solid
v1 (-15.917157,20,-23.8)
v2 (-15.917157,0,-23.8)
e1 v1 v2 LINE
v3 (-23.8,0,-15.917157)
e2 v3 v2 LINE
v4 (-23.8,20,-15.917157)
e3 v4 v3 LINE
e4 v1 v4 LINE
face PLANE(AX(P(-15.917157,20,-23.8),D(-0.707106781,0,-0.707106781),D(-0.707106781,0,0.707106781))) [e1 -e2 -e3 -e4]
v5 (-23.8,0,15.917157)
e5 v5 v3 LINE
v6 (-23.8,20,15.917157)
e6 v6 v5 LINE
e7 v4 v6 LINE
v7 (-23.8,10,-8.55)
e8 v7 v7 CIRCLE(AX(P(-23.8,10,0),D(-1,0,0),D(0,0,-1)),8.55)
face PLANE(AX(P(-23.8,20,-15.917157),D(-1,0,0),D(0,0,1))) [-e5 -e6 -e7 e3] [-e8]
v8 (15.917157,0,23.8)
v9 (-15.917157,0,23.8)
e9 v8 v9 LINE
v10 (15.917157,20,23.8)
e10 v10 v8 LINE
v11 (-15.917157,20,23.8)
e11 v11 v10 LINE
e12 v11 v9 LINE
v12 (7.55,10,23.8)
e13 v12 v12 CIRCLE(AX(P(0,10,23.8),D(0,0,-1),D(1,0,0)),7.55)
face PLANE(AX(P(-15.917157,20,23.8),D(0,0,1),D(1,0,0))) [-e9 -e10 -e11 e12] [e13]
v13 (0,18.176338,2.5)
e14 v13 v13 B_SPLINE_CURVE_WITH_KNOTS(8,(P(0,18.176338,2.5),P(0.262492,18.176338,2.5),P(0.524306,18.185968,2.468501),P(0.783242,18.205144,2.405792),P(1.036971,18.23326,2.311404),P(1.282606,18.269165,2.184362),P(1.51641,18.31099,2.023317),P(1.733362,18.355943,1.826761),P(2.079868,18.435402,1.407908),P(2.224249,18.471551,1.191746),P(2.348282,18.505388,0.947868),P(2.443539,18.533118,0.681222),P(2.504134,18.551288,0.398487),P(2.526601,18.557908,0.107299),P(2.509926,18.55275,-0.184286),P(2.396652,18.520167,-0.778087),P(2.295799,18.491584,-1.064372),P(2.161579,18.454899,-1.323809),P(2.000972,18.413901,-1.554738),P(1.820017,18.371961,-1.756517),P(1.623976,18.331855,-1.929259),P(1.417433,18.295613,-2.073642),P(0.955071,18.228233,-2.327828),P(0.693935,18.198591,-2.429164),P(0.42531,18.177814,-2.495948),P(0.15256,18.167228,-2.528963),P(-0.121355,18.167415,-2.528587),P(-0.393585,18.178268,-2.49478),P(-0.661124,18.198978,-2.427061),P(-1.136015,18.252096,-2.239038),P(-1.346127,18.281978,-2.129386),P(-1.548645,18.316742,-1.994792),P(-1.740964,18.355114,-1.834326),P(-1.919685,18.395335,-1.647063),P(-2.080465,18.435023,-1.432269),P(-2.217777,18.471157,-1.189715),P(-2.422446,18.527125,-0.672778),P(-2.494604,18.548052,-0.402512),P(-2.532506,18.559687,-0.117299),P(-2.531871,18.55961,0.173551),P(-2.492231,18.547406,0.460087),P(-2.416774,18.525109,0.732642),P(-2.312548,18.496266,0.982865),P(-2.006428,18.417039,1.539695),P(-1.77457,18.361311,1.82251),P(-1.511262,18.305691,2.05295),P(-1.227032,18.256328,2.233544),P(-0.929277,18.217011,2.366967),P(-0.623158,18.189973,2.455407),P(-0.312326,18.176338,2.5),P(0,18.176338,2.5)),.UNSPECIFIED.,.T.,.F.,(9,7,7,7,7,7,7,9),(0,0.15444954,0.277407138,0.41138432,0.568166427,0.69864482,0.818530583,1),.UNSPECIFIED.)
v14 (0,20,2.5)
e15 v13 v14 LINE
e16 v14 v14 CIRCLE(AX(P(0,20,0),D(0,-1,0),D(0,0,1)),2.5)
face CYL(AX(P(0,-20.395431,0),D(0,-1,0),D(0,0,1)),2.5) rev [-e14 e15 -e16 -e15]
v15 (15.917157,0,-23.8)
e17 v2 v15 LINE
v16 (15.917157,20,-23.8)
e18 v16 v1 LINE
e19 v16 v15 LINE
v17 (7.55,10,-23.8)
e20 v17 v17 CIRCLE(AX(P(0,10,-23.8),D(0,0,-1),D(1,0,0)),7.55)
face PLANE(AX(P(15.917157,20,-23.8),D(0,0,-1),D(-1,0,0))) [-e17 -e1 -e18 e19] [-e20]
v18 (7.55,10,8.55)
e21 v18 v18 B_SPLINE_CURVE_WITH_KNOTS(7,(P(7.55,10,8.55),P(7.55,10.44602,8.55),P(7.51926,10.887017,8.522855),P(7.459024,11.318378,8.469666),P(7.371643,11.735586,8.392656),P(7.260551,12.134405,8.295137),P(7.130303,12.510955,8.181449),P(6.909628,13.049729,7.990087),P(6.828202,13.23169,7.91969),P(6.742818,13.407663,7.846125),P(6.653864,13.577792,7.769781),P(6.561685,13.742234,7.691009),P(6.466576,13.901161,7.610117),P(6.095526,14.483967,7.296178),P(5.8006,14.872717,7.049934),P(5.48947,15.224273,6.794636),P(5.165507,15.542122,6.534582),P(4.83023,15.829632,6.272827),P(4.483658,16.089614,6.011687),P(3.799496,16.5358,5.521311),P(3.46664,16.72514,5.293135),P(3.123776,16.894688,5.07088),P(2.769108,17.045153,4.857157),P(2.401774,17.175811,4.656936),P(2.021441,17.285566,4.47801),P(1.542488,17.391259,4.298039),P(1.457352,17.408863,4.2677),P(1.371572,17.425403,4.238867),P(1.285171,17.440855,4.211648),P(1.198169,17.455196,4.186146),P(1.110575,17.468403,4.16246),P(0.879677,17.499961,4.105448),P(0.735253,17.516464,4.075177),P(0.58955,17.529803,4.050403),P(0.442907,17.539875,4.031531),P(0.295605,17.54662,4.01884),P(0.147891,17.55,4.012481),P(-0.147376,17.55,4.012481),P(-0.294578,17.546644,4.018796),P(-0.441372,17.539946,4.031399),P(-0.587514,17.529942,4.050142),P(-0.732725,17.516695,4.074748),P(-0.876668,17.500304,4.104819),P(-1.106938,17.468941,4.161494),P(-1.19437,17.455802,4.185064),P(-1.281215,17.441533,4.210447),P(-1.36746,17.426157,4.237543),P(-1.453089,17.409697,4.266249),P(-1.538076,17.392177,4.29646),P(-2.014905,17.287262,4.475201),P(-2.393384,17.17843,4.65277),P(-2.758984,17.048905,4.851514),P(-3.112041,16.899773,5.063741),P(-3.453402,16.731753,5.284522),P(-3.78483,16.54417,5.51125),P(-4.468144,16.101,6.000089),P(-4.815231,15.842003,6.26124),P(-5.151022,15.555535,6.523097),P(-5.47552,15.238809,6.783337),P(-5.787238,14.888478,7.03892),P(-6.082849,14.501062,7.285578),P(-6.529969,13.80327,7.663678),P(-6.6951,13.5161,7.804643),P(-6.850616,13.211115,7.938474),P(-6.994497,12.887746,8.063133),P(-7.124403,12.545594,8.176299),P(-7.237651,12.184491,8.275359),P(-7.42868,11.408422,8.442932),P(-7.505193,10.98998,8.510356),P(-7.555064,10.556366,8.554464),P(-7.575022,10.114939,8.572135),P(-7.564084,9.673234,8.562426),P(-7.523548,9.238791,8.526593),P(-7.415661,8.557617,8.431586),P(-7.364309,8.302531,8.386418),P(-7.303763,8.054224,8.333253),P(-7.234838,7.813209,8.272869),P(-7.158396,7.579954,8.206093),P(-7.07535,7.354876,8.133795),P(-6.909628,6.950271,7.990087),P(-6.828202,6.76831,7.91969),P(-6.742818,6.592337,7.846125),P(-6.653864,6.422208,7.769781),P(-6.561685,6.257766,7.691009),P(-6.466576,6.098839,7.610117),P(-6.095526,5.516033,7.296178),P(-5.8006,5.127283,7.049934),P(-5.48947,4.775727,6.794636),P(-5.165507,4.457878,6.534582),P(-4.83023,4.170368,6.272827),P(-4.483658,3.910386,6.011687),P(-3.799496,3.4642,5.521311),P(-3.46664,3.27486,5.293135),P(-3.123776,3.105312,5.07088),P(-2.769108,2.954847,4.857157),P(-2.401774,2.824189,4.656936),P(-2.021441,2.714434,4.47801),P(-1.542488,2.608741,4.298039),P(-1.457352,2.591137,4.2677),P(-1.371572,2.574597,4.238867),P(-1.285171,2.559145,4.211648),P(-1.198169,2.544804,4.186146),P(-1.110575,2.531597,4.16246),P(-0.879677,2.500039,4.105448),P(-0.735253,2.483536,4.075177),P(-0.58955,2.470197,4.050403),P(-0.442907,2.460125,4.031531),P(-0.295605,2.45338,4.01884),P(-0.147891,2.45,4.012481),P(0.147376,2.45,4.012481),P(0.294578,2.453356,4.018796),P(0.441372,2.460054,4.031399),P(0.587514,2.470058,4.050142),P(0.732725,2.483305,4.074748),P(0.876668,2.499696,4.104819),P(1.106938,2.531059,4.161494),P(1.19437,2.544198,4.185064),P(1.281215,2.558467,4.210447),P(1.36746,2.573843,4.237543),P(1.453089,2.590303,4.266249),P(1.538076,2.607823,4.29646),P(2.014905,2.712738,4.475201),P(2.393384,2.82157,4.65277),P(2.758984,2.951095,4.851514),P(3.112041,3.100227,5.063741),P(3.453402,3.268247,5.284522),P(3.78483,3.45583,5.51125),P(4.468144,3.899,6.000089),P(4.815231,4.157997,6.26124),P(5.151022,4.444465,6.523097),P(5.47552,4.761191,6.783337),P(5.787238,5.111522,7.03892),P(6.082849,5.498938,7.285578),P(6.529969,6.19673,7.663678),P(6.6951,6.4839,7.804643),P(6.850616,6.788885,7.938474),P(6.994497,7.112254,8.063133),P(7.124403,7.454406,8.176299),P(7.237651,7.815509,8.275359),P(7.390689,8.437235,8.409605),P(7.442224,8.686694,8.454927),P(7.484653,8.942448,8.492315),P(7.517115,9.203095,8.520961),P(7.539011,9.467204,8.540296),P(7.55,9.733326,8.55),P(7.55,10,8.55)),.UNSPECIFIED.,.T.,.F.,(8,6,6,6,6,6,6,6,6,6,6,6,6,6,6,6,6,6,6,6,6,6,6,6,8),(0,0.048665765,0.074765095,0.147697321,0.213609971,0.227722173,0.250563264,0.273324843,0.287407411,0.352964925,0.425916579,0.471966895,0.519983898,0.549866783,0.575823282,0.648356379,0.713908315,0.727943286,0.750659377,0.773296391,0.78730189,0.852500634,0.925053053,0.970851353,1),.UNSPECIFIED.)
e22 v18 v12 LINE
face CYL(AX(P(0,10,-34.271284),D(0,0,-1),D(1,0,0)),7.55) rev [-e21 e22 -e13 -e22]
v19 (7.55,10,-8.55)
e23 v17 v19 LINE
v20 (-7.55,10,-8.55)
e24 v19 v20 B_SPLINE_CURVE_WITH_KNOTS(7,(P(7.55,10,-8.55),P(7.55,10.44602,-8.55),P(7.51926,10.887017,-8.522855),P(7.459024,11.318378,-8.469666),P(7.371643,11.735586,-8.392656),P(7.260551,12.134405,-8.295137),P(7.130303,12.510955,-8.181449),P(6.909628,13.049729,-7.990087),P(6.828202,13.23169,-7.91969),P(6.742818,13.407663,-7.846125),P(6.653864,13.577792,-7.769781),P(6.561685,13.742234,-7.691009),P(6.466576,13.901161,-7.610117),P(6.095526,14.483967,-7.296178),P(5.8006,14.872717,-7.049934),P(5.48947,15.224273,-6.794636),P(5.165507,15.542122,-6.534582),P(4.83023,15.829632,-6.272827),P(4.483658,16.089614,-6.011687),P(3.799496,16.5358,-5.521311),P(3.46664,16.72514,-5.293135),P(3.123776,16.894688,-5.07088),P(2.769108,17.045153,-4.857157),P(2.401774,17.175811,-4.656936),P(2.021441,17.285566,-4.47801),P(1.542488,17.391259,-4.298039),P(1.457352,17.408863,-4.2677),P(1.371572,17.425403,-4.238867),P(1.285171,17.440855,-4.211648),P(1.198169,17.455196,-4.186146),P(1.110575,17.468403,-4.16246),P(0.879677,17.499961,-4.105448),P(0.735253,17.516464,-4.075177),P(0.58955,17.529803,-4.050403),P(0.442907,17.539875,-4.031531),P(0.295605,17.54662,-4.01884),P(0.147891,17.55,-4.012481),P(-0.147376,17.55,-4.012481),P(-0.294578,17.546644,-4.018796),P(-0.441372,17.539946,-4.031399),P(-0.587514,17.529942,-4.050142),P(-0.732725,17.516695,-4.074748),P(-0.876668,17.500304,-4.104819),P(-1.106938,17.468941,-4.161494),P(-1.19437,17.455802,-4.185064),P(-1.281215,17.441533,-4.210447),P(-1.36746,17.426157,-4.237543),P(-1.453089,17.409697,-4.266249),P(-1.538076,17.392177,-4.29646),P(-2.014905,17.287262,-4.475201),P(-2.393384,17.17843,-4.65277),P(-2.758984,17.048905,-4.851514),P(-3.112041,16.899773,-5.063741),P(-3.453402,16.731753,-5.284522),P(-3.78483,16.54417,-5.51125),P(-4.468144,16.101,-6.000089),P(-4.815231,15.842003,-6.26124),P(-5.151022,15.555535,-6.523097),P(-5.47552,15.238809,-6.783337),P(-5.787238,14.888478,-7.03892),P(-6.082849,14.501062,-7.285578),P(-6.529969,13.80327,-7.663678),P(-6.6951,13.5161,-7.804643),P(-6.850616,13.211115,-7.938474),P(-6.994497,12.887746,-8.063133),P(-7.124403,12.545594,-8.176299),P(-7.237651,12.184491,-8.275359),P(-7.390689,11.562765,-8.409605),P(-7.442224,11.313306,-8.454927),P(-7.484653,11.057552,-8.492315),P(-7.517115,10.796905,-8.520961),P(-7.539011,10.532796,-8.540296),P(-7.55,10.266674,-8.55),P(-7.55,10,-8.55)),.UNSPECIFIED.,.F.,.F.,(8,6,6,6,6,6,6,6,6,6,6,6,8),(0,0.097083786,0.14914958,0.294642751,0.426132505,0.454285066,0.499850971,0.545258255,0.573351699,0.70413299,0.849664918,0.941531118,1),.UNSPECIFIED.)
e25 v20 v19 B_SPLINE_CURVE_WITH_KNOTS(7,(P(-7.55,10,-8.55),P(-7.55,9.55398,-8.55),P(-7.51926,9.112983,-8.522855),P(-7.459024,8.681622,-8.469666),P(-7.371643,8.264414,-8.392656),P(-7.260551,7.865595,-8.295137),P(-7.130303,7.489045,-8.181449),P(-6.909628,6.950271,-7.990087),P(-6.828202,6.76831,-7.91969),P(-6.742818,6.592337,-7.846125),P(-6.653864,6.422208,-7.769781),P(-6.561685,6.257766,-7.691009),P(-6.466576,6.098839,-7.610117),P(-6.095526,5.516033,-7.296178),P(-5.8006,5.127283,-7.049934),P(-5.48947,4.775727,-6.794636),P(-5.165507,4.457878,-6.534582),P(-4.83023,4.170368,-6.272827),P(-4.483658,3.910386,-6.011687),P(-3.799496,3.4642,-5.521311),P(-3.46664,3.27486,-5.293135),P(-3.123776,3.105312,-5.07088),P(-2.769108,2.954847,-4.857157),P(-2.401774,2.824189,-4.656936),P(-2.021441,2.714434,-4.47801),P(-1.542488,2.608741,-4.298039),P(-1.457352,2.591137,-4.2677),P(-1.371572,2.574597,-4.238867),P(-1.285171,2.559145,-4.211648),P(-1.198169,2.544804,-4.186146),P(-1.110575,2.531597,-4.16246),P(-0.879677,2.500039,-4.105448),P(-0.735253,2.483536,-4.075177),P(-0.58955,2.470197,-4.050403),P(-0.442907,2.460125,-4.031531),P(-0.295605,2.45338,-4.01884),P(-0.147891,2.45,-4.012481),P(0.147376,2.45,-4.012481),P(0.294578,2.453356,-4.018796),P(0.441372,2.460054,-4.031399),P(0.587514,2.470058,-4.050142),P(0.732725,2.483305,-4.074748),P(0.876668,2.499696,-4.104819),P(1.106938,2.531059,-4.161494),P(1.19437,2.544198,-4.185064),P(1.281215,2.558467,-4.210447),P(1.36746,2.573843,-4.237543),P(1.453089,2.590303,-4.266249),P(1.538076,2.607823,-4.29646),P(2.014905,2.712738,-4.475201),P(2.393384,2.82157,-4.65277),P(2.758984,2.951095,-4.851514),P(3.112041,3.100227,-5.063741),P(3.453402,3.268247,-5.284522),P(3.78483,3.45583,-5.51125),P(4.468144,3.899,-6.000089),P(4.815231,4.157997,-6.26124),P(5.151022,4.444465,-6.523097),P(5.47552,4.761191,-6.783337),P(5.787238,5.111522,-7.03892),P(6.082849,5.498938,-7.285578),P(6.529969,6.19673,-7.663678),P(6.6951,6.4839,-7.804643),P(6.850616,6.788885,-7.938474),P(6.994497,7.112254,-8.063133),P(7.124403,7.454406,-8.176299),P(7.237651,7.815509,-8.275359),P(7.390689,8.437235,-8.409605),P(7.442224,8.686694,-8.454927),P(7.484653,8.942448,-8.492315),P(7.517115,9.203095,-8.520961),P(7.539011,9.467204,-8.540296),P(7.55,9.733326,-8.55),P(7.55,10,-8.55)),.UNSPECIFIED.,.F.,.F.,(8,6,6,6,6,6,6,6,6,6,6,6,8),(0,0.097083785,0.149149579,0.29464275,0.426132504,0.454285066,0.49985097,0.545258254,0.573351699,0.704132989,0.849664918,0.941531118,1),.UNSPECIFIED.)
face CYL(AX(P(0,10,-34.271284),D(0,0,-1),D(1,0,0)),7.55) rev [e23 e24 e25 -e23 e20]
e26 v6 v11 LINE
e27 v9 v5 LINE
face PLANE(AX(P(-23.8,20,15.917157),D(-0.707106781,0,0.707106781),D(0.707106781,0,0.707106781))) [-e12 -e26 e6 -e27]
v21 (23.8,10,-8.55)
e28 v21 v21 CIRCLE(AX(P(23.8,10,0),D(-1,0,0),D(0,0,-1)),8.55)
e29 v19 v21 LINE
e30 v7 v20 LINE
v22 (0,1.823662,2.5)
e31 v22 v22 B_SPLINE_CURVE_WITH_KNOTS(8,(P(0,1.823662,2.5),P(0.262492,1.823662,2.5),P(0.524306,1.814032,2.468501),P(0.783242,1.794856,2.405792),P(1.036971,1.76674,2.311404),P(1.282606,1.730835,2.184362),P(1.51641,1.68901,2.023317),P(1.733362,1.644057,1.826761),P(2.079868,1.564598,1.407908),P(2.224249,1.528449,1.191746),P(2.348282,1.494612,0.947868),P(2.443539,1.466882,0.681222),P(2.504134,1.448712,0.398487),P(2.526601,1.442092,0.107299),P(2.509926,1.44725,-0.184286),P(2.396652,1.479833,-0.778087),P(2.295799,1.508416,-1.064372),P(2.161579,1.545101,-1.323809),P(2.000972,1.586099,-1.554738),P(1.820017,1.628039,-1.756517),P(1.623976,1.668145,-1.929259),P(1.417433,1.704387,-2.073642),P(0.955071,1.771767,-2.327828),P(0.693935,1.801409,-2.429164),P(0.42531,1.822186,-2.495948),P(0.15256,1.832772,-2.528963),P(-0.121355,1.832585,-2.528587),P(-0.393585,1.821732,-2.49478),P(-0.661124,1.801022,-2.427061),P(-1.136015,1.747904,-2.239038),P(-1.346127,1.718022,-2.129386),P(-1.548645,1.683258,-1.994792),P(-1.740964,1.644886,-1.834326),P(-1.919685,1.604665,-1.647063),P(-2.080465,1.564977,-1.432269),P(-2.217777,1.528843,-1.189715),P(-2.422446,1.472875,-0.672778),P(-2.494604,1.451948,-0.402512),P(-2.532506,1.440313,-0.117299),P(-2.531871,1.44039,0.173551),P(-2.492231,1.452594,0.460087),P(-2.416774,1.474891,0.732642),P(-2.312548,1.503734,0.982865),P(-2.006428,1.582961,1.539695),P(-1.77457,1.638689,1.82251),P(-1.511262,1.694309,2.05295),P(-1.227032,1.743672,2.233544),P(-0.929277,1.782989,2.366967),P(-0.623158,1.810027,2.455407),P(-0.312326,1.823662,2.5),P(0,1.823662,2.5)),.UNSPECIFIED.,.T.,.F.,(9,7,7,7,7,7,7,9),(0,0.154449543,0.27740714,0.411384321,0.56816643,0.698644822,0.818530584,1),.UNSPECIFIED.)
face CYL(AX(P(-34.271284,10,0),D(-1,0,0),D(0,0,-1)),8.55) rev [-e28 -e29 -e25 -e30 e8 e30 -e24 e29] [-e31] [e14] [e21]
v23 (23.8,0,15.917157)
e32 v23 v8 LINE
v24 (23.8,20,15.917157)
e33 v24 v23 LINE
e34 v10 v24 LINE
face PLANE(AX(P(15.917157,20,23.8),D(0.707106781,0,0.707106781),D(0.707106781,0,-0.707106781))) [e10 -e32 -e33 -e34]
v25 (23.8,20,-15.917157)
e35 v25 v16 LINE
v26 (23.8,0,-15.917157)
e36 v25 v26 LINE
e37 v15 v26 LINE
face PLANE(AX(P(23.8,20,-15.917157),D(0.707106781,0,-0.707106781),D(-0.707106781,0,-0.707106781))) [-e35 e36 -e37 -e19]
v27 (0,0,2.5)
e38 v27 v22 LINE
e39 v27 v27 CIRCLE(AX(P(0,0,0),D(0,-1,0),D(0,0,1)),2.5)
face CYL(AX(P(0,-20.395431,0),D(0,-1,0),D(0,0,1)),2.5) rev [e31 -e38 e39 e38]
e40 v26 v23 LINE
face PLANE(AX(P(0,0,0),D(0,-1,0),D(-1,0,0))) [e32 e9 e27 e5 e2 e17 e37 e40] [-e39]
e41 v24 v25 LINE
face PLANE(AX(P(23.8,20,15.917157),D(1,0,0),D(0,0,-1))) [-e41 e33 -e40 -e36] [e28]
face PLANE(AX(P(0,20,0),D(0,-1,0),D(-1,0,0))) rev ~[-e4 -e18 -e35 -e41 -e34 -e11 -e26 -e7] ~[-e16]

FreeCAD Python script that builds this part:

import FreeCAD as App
import Part
import Sketcher

V = App.Vector


def add_polygon(sketch, points):
    """Adds a closed chain of lines whose ends are joined by coincident constraints."""
    first, n = sketch.GeometryCount, len(points)
    for a, b in zip(points, points[1:] + points[:1]):
        sketch.addGeometry(Part.LineSegment(App.Vector(*a, 0), App.Vector(*b, 0)), False)
    for i in range(n):
        sketch.addConstraint(Sketcher.Constraint("Coincident", first + i, 2, first + (i + 1) % n, 1))

doc = App.newDocument("Part")
params = doc.addObject("Spreadsheet::Sheet", "Params")
for row, (alias, value) in enumerate([
    ("sketch1_width", "32 mm"),
    ("pad1_length", "20 mm"),
    ("sketch2_diameter", "15.1 mm"),
    ("sketch3_diameter", "17.1 mm"),
    ("sketch4_diameter", "5 mm"),
    ("sketch5_width", "32 mm"),
], start=1):
    params.set(f"A{row}", alias)
    params.set(f"B{row}", "=" + value)
    params.setAlias(f"B{row}", alias)

body = doc.addObject("PartDesign::Body", "Body")

# Sketch on XZ plane
sketch1 = body.newObject("Sketcher::SketchObject", "Sketch")
sketch1.AttachmentSupport = (doc.getObject("XZ_Plane"), [""])
sketch1.MapMode = "FlatFace"
add_polygon(sketch1, [(-16, -24), (-24, -16), (-24, 16), (-16, 24), (16, 24), (24, 16), (24, -16), (16, -24)])  # lines 0-7
sketch1.addConstraint([
    Sketcher.Constraint("Vertical", 1),
    Sketcher.Constraint("Horizontal", 3),
    Sketcher.Constraint("Vertical", 5),
    Sketcher.Constraint("Horizontal", 7),
    Sketcher.Constraint("Symmetric", 0, 2, 4, 2, -1, 1),
    Sketcher.Constraint("Symmetric", 2, 2, 6, 2, -1, 1),
    Sketcher.Constraint("Perpendicular", 0, 2),
    Sketcher.Constraint("Perpendicular", 2, 4),
    Sketcher.Constraint("Perpendicular", 4, 6),
    Sketcher.Constraint("Horizontal", 1, 2, 4, 2),
    Sketcher.Constraint("Vertical", 3, 2, 6, 2),
    Sketcher.Constraint("Equal", 7, 1),
    Sketcher.Constraint("DistanceX", 3, 1, 3, 2, 32.0),
    Sketcher.Constraint("DistanceX", 0, 2, -1, 1, 24.0),
])
sketch1.setExpression("Constraints[20]", "Params.sketch1_width")
pad1 = body.newObject("PartDesign::Pad", "Pad")
pad1.Profile = sketch1
pad1.setExpression("Length", "Params.pad1_length")
pad1.Reversed = True

# Sketch on XY plane
sketch2 = body.newObject("Sketcher::SketchObject", "Sketch001")
sketch2.AttachmentSupport = (doc.getObject("XY_Plane"), [""])
sketch2.MapMode = "FlatFace"
sketch2.AttachmentOffset = App.Placement(V(0, 0, 24), App.Rotation())
sketch2.addGeometry(Part.Circle(V(0, 10, 0), V(0, 0, 1), 7.55), False)
sketch2.addConstraint([
    Sketcher.Constraint("PointOnObject", 0, 3, -2),
    Sketcher.Constraint("Diameter", 0, 15.1),
    Sketcher.Constraint("DistanceY", -1, 1, 0, 3, 10.0),
])
sketch2.setExpression("Constraints[1]", "Params.sketch2_diameter")
pocket1 = body.newObject("PartDesign::Pocket", "Pocket")
pocket1.Profile = sketch2
pocket1.Type = "ThroughAll"
pocket1.Midplane = True

# Sketch on YZ plane
sketch3 = body.newObject("Sketcher::SketchObject", "Sketch002")
sketch3.AttachmentSupport = (doc.getObject("YZ_Plane"), [""])
sketch3.MapMode = "FlatFace"
sketch3.AttachmentOffset = App.Placement(V(0, 0, 24), App.Rotation())
sketch3.addGeometry(Part.Circle(V(10, 0, 0), V(0, 0, 1), 8.55), False)
sketch3.addConstraint([
    Sketcher.Constraint("PointOnObject", 0, 3, -1),
    Sketcher.Constraint("Diameter", 0, 17.1),
    Sketcher.Constraint("DistanceX", -1, 1, 0, 3, 10.0),
])
sketch3.setExpression("Constraints[1]", "Params.sketch3_diameter")
pocket2 = body.newObject("PartDesign::Pocket", "Pocket001")
pocket2.Profile = sketch3
pocket2.Type = "ThroughAll"
pocket2.Midplane = True

# Sketch on XZ plane
sketch4 = body.newObject("Sketcher::SketchObject", "Sketch003")
sketch4.AttachmentSupport = (doc.getObject("XZ_Plane"), [""])
sketch4.MapMode = "FlatFace"
sketch4.AttachmentOffset = App.Placement(V(0, 0, -20), App.Rotation())
sketch4.addGeometry(Part.Circle(V(0, 0, 0), V(0, 0, 1), 2.5), False)
sketch4.addConstraint([
    Sketcher.Constraint("Coincident", 0, 3, -1, 1),
    Sketcher.Constraint("Diameter", 0, 5.0),
])
sketch4.setExpression("Constraints[1]", "Params.sketch4_diameter")
pocket3 = body.newObject("PartDesign::Pocket", "Pocket002")
pocket3.Profile = sketch4
pocket3.Type = "ThroughAll"
pocket3.Midplane = True

# Sketch on XZ plane
sketch5 = body.newObject("Sketcher::SketchObject", "Sketch004")
sketch5.AttachmentSupport = (doc.getObject("XZ_Plane"), [""])
sketch5.MapMode = "FlatFace"
sketch5.AttachmentOffset = App.Placement(V(0, 0, -20), App.Rotation())
add_polygon(sketch5, [(-24, -16), (-24, 16), (-16, 24), (16, 24), (24, 16), (24, -16), (16, -24), (-16, -24)])  # lines 0-7
add_polygon(sketch5, [(-23.8, 15.917157), (-23.8, -15.917157), (-15.917157, -23.8), (15.917157, -23.8), (23.8, -15.917157), (23.8, 15.917157), (15.917157, 23.8), (-15.917157, 23.8)])  # lines 8-15
sketch5.addConstraint([
    Sketcher.Constraint("Vertical", 0),
    Sketcher.Constraint("Horizontal", 2),
    Sketcher.Constraint("Vertical", 4),
    Sketcher.Constraint("Horizontal", 6),
    Sketcher.Constraint("Vertical", 8),
    Sketcher.Constraint("Horizontal", 10),
    Sketcher.Constraint("Vertical", 12),
    Sketcher.Constraint("Horizontal", 14),
    Sketcher.Constraint("Symmetric", 0, 2, 4, 2, -1, 1),
    Sketcher.Constraint("Symmetric", 1, 2, 5, 2, -1, 1),
    Sketcher.Constraint("Symmetric", 8, 2, 12, 2, -1, 1),
    Sketcher.Constraint("Symmetric", 9, 2, 13, 2, -1, 1),
    Sketcher.Constraint("Perpendicular", 1, 3),
    Sketcher.Constraint("Perpendicular", 5, 7),
    Sketcher.Constraint("Parallel", 7, 9),
    Sketcher.Constraint("Perpendicular", 9, 11),
    Sketcher.Constraint("Perpendicular", 13, 15),
    Sketcher.Constraint("Horizontal", 0, 2, 3, 2),
    Sketcher.Constraint("Horizontal", 4, 2, 7, 2),
    Sketcher.Constraint("Horizontal", 8, 2, 11, 2),
    Sketcher.Constraint("Horizontal", 12, 2, 15, 2),
    Sketcher.Constraint("Vertical", 2, 2, 5, 2),
    Sketcher.Constraint("Equal", 6, 0),
    Sketcher.Constraint("Equal", 14, 8),
    Sketcher.Constraint("DistanceX", 2, 1, 2, 2, 32.0),
    Sketcher.Constraint("DistanceX", 0, 2, -1, 1, 24.0),
    Sketcher.Constraint("DistanceX", 8, 2, -1, 1, 23.8),
    Sketcher.Constraint("DistanceX", 10, 1, 10, 2, 31.834315),
])
sketch5.setExpression("Constraints[40]", "Params.sketch5_width")
pocket4 = body.newObject("PartDesign::Pocket", "Pocket003")
pocket4.Profile = sketch5
pocket4.Type = "ThroughAll"
pocket4.Reversed = True

doc.recompute()
